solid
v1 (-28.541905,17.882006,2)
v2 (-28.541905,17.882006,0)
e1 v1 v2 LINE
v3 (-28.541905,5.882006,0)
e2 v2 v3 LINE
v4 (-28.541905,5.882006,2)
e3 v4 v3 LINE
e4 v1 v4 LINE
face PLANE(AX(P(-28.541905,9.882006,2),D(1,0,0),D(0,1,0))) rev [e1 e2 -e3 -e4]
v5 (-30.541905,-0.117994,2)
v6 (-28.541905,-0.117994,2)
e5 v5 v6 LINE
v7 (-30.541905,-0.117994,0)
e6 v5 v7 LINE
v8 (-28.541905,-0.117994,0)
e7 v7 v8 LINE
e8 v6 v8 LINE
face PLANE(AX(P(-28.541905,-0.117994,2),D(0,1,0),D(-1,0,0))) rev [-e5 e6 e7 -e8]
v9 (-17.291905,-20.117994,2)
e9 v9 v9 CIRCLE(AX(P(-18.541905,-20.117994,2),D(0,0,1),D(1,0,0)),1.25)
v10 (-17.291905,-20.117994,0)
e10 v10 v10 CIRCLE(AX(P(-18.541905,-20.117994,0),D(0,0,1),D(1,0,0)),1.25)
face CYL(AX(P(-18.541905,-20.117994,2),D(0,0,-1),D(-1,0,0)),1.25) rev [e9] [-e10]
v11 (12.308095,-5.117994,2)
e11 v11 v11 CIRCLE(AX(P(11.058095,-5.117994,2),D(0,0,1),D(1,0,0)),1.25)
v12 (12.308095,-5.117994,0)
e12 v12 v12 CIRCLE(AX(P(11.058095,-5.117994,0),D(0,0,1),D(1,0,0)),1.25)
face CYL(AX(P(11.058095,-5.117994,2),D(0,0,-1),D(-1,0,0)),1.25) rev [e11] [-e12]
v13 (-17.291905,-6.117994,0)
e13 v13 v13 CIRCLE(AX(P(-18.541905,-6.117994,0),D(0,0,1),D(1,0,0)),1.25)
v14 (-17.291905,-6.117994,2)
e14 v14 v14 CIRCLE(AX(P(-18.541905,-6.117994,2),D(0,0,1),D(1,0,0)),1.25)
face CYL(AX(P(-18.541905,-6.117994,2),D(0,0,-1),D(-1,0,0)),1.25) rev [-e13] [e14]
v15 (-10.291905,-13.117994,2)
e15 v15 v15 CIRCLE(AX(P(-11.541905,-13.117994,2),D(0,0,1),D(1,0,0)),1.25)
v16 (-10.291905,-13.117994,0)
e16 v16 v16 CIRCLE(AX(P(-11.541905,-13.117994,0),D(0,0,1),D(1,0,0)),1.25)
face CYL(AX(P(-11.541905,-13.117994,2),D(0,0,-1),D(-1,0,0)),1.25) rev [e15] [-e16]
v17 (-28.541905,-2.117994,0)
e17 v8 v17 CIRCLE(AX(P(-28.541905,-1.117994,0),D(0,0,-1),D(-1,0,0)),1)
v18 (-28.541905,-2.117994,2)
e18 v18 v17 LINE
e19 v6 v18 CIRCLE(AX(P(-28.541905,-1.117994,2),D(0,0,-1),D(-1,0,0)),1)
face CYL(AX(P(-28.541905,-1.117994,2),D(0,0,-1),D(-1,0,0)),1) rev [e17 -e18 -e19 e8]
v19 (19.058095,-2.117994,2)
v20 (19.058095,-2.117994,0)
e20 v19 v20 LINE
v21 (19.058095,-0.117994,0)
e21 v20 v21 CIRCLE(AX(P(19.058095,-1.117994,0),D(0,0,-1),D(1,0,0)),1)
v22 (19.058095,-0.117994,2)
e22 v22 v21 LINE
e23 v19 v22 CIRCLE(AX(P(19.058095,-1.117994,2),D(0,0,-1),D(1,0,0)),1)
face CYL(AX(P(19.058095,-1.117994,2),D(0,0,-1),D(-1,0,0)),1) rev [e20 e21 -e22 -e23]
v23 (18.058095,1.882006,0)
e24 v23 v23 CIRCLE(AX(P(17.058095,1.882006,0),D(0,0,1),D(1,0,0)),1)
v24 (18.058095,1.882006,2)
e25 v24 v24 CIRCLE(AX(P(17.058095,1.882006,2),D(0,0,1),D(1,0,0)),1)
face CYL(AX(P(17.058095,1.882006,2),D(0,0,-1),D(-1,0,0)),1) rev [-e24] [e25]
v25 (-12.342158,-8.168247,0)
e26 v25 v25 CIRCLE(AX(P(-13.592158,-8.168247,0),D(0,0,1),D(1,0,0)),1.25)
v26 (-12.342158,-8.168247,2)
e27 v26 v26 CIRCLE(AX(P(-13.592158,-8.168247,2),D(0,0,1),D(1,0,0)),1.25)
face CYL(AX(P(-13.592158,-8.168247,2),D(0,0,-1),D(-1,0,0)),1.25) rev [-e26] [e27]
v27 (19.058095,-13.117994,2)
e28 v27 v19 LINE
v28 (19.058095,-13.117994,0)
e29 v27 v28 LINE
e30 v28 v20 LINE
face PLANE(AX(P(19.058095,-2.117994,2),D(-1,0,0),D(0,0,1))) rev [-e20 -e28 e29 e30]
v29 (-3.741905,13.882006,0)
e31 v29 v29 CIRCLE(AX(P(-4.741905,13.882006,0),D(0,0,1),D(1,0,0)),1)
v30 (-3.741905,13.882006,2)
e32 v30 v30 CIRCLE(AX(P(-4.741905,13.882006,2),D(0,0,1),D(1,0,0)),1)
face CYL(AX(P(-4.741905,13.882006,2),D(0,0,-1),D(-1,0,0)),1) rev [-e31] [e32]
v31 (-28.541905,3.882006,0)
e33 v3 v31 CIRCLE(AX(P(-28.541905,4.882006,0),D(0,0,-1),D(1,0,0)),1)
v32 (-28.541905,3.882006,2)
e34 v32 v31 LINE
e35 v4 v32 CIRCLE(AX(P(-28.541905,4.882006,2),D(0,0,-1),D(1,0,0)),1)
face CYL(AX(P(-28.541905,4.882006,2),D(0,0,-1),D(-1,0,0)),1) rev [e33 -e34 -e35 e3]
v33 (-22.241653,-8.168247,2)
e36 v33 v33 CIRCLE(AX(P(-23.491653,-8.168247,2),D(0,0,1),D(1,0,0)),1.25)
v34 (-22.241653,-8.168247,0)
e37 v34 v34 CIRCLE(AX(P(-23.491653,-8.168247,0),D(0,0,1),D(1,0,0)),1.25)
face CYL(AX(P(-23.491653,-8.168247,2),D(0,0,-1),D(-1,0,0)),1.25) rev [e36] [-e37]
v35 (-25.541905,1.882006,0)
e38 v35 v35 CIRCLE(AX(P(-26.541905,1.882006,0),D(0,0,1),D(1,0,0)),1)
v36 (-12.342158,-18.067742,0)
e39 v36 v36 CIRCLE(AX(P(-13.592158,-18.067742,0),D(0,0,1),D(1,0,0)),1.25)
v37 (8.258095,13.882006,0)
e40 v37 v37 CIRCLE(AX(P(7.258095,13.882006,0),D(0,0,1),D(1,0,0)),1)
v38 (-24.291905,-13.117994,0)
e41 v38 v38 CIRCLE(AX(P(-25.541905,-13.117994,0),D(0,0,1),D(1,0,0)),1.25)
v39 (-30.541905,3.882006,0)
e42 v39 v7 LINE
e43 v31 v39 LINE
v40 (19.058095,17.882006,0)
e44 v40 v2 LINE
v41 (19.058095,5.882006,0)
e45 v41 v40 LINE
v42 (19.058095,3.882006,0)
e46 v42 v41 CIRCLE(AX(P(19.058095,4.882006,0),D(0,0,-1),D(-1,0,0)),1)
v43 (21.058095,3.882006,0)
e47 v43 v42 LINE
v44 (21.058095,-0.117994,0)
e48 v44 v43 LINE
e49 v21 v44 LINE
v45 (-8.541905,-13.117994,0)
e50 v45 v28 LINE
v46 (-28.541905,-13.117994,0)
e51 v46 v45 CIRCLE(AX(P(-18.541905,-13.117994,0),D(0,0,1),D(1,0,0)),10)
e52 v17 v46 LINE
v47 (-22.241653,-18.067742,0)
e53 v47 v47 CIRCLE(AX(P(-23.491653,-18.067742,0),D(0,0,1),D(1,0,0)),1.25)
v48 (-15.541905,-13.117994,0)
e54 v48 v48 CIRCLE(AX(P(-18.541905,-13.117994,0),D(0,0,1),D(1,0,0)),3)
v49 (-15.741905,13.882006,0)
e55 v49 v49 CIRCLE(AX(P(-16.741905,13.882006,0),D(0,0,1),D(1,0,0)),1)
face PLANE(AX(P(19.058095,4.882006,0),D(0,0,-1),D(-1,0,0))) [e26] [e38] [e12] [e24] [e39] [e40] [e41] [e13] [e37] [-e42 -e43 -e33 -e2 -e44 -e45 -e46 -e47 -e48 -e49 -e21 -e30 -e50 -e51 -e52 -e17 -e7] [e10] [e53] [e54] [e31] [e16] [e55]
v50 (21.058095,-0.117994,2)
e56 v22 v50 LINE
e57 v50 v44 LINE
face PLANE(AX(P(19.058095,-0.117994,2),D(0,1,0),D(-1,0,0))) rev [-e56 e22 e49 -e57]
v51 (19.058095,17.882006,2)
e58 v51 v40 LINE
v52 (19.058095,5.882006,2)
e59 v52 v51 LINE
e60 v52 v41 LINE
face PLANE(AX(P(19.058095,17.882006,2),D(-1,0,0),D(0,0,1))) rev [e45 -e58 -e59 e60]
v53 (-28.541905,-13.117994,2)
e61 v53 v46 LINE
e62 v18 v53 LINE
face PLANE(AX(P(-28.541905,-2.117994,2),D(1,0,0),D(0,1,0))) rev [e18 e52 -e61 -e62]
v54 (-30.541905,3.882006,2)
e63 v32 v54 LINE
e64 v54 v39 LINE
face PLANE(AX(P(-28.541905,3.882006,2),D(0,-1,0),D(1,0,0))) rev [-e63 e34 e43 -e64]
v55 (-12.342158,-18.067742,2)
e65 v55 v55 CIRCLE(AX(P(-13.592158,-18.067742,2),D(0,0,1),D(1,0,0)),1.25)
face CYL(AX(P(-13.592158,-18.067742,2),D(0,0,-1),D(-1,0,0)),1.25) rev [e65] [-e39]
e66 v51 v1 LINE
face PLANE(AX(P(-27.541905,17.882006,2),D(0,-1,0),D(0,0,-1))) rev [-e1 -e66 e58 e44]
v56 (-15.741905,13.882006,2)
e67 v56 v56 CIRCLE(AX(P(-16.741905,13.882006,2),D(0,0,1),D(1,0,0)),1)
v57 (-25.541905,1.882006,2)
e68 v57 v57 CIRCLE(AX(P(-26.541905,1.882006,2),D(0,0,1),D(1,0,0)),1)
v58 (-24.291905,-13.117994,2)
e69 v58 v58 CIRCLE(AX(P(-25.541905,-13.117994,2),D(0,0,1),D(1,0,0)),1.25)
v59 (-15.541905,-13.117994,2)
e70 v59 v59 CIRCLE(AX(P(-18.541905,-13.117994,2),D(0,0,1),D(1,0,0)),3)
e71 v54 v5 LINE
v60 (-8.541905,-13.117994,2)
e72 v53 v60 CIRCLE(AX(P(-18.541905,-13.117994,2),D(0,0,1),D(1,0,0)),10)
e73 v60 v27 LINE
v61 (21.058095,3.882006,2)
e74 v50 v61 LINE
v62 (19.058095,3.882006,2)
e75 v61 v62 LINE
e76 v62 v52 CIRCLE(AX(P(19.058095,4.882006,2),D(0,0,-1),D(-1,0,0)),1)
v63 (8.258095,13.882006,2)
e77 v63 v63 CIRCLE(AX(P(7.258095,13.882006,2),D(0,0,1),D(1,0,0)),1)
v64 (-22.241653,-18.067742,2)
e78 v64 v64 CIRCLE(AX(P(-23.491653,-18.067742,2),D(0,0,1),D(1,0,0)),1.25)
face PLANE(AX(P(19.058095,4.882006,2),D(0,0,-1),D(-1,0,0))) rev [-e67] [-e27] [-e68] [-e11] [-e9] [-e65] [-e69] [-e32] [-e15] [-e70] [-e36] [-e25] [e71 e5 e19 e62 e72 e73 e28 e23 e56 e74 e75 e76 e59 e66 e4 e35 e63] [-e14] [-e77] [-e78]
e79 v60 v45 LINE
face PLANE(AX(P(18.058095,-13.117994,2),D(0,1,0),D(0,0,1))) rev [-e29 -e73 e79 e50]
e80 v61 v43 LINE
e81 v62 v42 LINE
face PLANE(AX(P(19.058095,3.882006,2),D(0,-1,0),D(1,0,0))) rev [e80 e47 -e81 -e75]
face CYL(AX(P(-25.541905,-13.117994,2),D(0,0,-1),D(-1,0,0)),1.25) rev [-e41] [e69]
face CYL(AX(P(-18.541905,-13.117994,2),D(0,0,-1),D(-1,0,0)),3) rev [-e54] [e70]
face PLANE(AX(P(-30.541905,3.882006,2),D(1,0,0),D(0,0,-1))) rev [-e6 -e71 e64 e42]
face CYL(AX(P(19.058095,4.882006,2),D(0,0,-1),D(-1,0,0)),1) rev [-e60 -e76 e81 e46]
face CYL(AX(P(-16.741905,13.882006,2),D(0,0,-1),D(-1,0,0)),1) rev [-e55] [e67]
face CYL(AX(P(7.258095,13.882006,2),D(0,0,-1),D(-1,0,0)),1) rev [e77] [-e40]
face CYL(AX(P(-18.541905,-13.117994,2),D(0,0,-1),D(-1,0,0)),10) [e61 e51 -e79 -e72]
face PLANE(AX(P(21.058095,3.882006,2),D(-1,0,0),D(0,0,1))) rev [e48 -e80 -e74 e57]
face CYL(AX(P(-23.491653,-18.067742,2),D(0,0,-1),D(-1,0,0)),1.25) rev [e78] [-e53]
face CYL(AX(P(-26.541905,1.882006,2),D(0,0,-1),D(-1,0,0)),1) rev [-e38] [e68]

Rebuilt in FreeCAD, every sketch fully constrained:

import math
import FreeCAD as App
import Part
import Sketcher

V = App.Vector

doc = App.newDocument("Part")
body = doc.addObject("PartDesign::Body", "Body")

sketch1 = body.newObject("Sketcher::SketchObject", "Sketch")
sketch1.AttachmentSupport = (doc.getObject("XY_Plane"), [""])
sketch1.MapMode = "FlatFace"
sketch1.addGeometry([
    Part.LineSegment(V(19.1, -13.1, 0), V(19.1, -2.1, 0)),
    Part.ArcOfCircle(Part.Circle(V(19.1, -1.1, 0), V(0, 0, 1), 1), math.radians(90), math.radians(270)),
    Part.LineSegment(V(19.1, -0.1, 0), V(21.1, -0.1, 0)),
    Part.LineSegment(V(21.1, -0.1, 0), V(21.1, 3.9, 0)),
    Part.LineSegment(V(21.1, 3.9, 0), V(19.1, 3.9, 0)),
    Part.ArcOfCircle(Part.Circle(V(19.1, 4.9, 0), V(0, 0, 1), 1), math.radians(90), math.radians(270)),
    Part.LineSegment(V(19.1, 5.9, 0), V(19.1, 17.9, 0)),
    Part.LineSegment(V(19.1, 17.9, 0), V(-28.5, 17.9, 0)),
    Part.LineSegment(V(-28.5, 17.9, 0), V(-28.5, 5.9, 0)),
    Part.ArcOfCircle(Part.Circle(V(-28.5, 4.9, 0), V(0, 0, 1), 1), math.radians(-90), math.radians(90)),
    Part.LineSegment(V(-28.5, 3.9, 0), V(-30.5, 3.9, 0)),
    Part.LineSegment(V(-30.5, 3.9, 0), V(-30.5, -0.1, 0)),
    Part.LineSegment(V(-30.5, -0.1, 0), V(-28.5, -0.1, 0)),
    Part.ArcOfCircle(Part.Circle(V(-28.5, -1.1, 0), V(0, 0, 1), 1), math.radians(-90), math.radians(90)),
    Part.LineSegment(V(-28.5, -2.1, 0), V(-28.5, -13.1, 0)),
    Part.ArcOfCircle(Part.Circle(V(-18.5, -13.1, 0), V(0, 0, 1), 10), math.radians(180), math.radians(360)),
    Part.LineSegment(V(-8.5, -13.1, 0), V(19.1, -13.1, 0)),
    Part.Circle(V(-23.5, -18.1, 0), V(0, 0, 1), 1.2),
    Part.Circle(V(-18.5, -20.1, 0), V(0, 0, 1), 1.2),
    Part.Circle(V(-25.5, -13.1, 0), V(0, 0, 1), 1.2),
    Part.Circle(V(-18.5, -13.1, 0), V(0, 0, 1), 3),
    Part.Circle(V(-13.6, -18.1, 0), V(0, 0, 1), 1.2),
    Part.Circle(V(-11.5, -13.1, 0), V(0, 0, 1), 1.2),
    Part.Circle(V(-23.5, -8.2, 0), V(0, 0, 1), 1.2),
    Part.Circle(V(-18.5, -6.1, 0), V(0, 0, 1), 1.2),
    Part.Circle(V(-13.6, -8.2, 0), V(0, 0, 1), 1.2),
    Part.Circle(V(11.1, -5.1, 0), V(0, 0, 1), 1.2),
    Part.Circle(V(-26.5, 1.9, 0), V(0, 0, 1), 1),
    Part.Circle(V(-16.7, 13.9, 0), V(0, 0, 1), 1),
    Part.Circle(V(17.1, 1.9, 0), V(0, 0, 1), 1),
    Part.Circle(V(-4.7, 13.9, 0), V(0, 0, 1), 1),
    Part.Circle(V(7.3, 13.9, 0), V(0, 0, 1), 1),
], False)
sketch1.addConstraint([
    Sketcher.Constraint("Coincident", 0, 2, 1, 2),
    Sketcher.Constraint("Tangent", 1, 1, 2, 1),
    Sketcher.Constraint("Coincident", 2, 2, 3, 1),
    Sketcher.Constraint("Coincident", 3, 2, 4, 1),
    Sketcher.Constraint("Tangent", 4, 2, 5, 2),
    Sketcher.Constraint("Coincident", 5, 1, 6, 1),
    Sketcher.Constraint("Coincident", 6, 2, 7, 1),
    Sketcher.Constraint("Coincident", 7, 2, 8, 1),
    Sketcher.Constraint("Coincident", 8, 2, 9, 2),
    Sketcher.Constraint("Tangent", 9, 1, 10, 1),
    Sketcher.Constraint("Coincident", 10, 2, 11, 1),
    Sketcher.Constraint("Coincident", 11, 2, 12, 1),
    Sketcher.Constraint("Tangent", 12, 2, 13, 2),
    Sketcher.Constraint("Coincident", 13, 1, 14, 1),
    Sketcher.Constraint("Tangent", 14, 2, 15, 1),
    Sketcher.Constraint("Coincident", 15, 2, 16, 1),
    Sketcher.Constraint("Coincident", 16, 2, 0, 1),
    Sketcher.Constraint("Vertical", 0),
    Sketcher.Constraint("Horizontal", 2),
    Sketcher.Constraint("Vertical", 3),
    Sketcher.Constraint("Horizontal", 4),
    Sketcher.Constraint("Vertical", 6),
    Sketcher.Constraint("Horizontal", 7),
    Sketcher.Constraint("Vertical", 8),
    Sketcher.Constraint("Horizontal", 10),
    Sketcher.Constraint("Vertical", 11),
    Sketcher.Constraint("Horizontal", 12),
    Sketcher.Constraint("Vertical", 14),
    Sketcher.Constraint("Horizontal", 16),
    Sketcher.Constraint("Coincident", 20, 3, 15, 3),
    Sketcher.Constraint("Equal", 1, 5),
    Sketcher.Constraint("Equal", 5, 9),
    Sketcher.Constraint("Equal", 9, 13),
    Sketcher.Constraint("Equal", 17, 18),
    Sketcher.Constraint("Equal", 18, 19),
    Sketcher.Constraint("Equal", 19, 21),
    Sketcher.Constraint("Equal", 21, 22),
    Sketcher.Constraint("Equal", 22, 23),
    Sketcher.Constraint("Equal", 23, 24),
    Sketcher.Constraint("Equal", 24, 25),
    Sketcher.Constraint("Equal", 25, 26),
    Sketcher.Constraint("Equal", 13, 27),
    Sketcher.Constraint("Equal", 27, 28),
    Sketcher.Constraint("Equal", 28, 29),
    Sketcher.Constraint("Equal", 29, 30),
    Sketcher.Constraint("Equal", 30, 31),
    Sketcher.Constraint("Horizontal", 5, 3, 9, 3),
    Sketcher.Constraint("Horizontal", 1, 3, 13, 3),
    Sketcher.Constraint("Horizontal", 15, 3, 19, 3),
    Sketcher.Constraint("Horizontal", 17, 3, 21, 3),
    Sketcher.Constraint("Horizontal", 20, 3, 22, 3),
    Sketcher.Constraint("Horizontal", 23, 3, 25, 3),
    Sketcher.Constraint("Horizontal", 27, 3, 29, 3),
    Sketcher.Constraint("Horizontal", 28, 3, 30, 3),
    Sketcher.Constraint("Horizontal", 30, 3, 31, 3),
    Sketcher.Constraint("Horizontal", 14, 2, 15, 2),
    Sketcher.Constraint("Vertical", 1, 3, 5, 3),
    Sketcher.Constraint("Vertical", 9, 3, 13, 3),
    Sketcher.Constraint("Vertical", 15, 3, 18, 3),
    Sketcher.Constraint("Vertical", 17, 3, 23, 3),
    Sketcher.Constraint("Vertical", 20, 3, 24, 3),
    Sketcher.Constraint("Vertical", 21, 3, 25, 3),
    Sketcher.Constraint("Vertical", 5, 3, 0, 2),
    Sketcher.Constraint("Vertical", 4, 2, 5, 1),
    Sketcher.Constraint("Vertical", 13, 3, 7, 2),
    Sketcher.Constraint("Vertical", 12, 2, 13, 1),
    Sketcher.Constraint("Equal", 4, 10),
    Sketcher.Constraint("Diameter", 20, 6.0),
    Sketcher.Constraint("Diameter", 27, 2.0),
    Sketcher.Constraint("Radius", 15, 10.0),
    Sketcher.Constraint("Diameter", 17, 2.5),
    Sketcher.Constraint("DistanceX", 2, 1, 2, 2, 2.0),
    Sketcher.Constraint("DistanceY", 0, 1, 0, 2, 11.0),
    Sketcher.Constraint("DistanceY", 3, 1, 3, 2, 4.0),
    Sketcher.Constraint("DistanceY", 6, 1, 6, 2, 12.0),
    Sketcher.Constraint("DistanceX", 7, 2, 7, 1, 47.6),
    Sketcher.Constraint("DistanceY", 18, 3, 15, 3, 7.0),
    Sketcher.Constraint("DistanceX", 19, 3, 15, 3, 7.0),
    Sketcher.Constraint("DistanceX", 15, 3, 22, 3, 7.0),
    Sketcher.Constraint("DistanceY", 15, 3, 24, 3, 7.0),
    Sketcher.Constraint("DistanceX", 26, 3, 1, 3, 8.0),
    Sketcher.Constraint("DistanceY", 26, 3, 1, 3, 4.0),
    Sketcher.Constraint("DistanceX", 9, 3, 27, 3, 2.0),
    Sketcher.Constraint("DistanceY", 27, 3, 9, 3, 3.0),
    Sketcher.Constraint("DistanceY", 9, 3, 28, 3, 9.0),
    Sketcher.Constraint("DistanceX", 29, 3, 1, 3, 2.0),
    Sketcher.Constraint("DistanceX", 28, 3, 30, 3, 12.0),
    Sketcher.Constraint("DistanceX", 30, 3, 31, 3, 12.0),
    Sketcher.Constraint("DistanceX", 9, 3, 28, 3, 11.8),
    Sketcher.Constraint("DistanceY", 17, 3, -1, 1, 18.067742),
    Sketcher.Constraint("DistanceX", -1, 1, 1, 3, 19.058095),
    Sketcher.Constraint("DistanceY", 1, 3, -1, 1, 1.117994),
    Sketcher.Constraint("DistanceX", 17, 3, -1, 1, 23.491653),
    Sketcher.Constraint("DistanceX", 21, 3, -1, 1, 13.592158),
    Sketcher.Constraint("DistanceY", 23, 3, -1, 1, 8.168247),
])
pad1 = body.newObject("PartDesign::Pad", "Pad")
pad1.Profile = sketch1
pad1.Length = 2

doc.recompute()
